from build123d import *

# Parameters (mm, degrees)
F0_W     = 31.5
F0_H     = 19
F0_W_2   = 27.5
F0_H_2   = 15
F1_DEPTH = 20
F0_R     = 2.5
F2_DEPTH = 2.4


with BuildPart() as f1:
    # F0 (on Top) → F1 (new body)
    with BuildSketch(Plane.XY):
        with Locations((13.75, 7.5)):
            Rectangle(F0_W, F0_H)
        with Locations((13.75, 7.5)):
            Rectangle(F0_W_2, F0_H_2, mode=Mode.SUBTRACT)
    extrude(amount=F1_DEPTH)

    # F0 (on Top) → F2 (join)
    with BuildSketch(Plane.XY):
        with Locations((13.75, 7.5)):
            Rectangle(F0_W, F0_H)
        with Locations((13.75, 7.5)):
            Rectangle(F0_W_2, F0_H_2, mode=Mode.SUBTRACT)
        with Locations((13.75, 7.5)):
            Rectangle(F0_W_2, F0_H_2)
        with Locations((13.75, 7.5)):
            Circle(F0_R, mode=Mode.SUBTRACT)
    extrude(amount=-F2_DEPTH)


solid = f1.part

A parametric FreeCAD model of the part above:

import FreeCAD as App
import Part
import Sketcher

V = App.Vector

doc = App.newDocument("Part")
params = doc.addObject("Spreadsheet::Sheet", "Params")
for row, (alias, value) in enumerate([
    ("sketch1_height", "19 mm"),
    ("sketch1_height2", "15 mm"),
    ("sketch1_width", "31.5 mm"),
    ("sketch1_width2", "27.5 mm"),
    ("pad1_length", "20 mm"),
    ("sketch2_diameter", "5 mm"),
    ("sketch2_height", "19 mm"),
    ("sketch2_width", "31.5 mm"),
    ("pad2_length", "2.4 mm"),
], start=1):
    params.set(f"A{row}", alias)
    params.set(f"B{row}", "=" + value)
    params.setAlias(f"B{row}", alias)

body = doc.addObject("PartDesign::Body", "Body")

sketch1 = body.newObject("Sketcher::SketchObject", "Sketch")
sketch1.AttachmentSupport = (doc.getObject("XY_Plane"), [""])
sketch1.MapMode = "FlatFace"
sketch1.addGeometry(Part.LineSegment(V(-2, 17, 0), V(-2, -2, 0)), False)
sketch1.addGeometry(Part.LineSegment(V(-2, -2, 0), V(29.5, -2, 0)), False)
sketch1.addGeometry(Part.LineSegment(V(29.5, -2, 0), V(29.5, 17, 0)), False)
sketch1.addGeometry(Part.LineSegment(V(29.5, 17, 0), V(-2, 17, 0)), False)
sketch1.addGeometry(Part.LineSegment(V(27.5, 0, 0), V(0, 0, 0)), False)
sketch1.addGeometry(Part.LineSegment(V(0, 0, 0), V(0, 15, 0)), False)
sketch1.addGeometry(Part.LineSegment(V(0, 15, 0), V(27.5, 15, 0)), False)
sketch1.addGeometry(Part.LineSegment(V(27.5, 15, 0), V(27.5, 0, 0)), False)
sketch1.addConstraint(Sketcher.Constraint("Coincident", 0, 2, 1, 1))
sketch1.addConstraint(Sketcher.Constraint("Coincident", 1, 2, 2, 1))
sketch1.addConstraint(Sketcher.Constraint("Coincident", 2, 2, 3, 1))
sketch1.addConstraint(Sketcher.Constraint("Coincident", 3, 2, 0, 1))
sketch1.addConstraint(Sketcher.Constraint("Coincident", 4, 2, 5, 1))
sketch1.addConstraint(Sketcher.Constraint("Coincident", 5, 2, 6, 1))
sketch1.addConstraint(Sketcher.Constraint("Coincident", 6, 2, 7, 1))
sketch1.addConstraint(Sketcher.Constraint("Coincident", 7, 2, 4, 1))
sketch1.addConstraint(Sketcher.Constraint("Vertical", 0))
sketch1.addConstraint(Sketcher.Constraint("Horizontal", 1))
sketch1.addConstraint(Sketcher.Constraint("Vertical", 2))
sketch1.addConstraint(Sketcher.Constraint("Horizontal", 3))
sketch1.addConstraint(Sketcher.Constraint("Horizontal", 4))
sketch1.addConstraint(Sketcher.Constraint("Vertical", 5))
sketch1.addConstraint(Sketcher.Constraint("Horizontal", 6))
sketch1.addConstraint(Sketcher.Constraint("Vertical", 7))
sketch1.addConstraint(Sketcher.Constraint("Coincident", 4, 2, -1, 1))
sketch1.addConstraint(Sketcher.Constraint("DistanceY", 0, 2, 0, 1, 19.0))
sketch1.addConstraint(Sketcher.Constraint("DistanceY", 5, 1, 5, 2, 15.0))
sketch1.addConstraint(Sketcher.Constraint("DistanceX", 1, 1, 1, 2, 31.5))
sketch1.addConstraint(Sketcher.Constraint("DistanceX", 4, 2, 4, 1, 27.5))
sketch1.addConstraint(Sketcher.Constraint("DistanceX", 0, 2, -1, 1, 2.0))
sketch1.addConstraint(Sketcher.Constraint("DistanceY", 0, 2, -1, 1, 2.0))
sketch1.setExpression("Constraints[17]", "Params.sketch1_height")
sketch1.setExpression("Constraints[18]", "Params.sketch1_height2")
sketch1.setExpression("Constraints[19]", "Params.sketch1_width")
sketch1.setExpression("Constraints[20]", "Params.sketch1_width2")
pad1 = body.newObject("PartDesign::Pad", "Pad")
pad1.Profile = sketch1
pad1.setExpression("Length", "Params.pad1_length")

sketch2 = body.newObject("Sketcher::SketchObject", "Sketch001")
sketch2.AttachmentSupport = (doc.getObject("XY_Plane"), [""])
sketch2.MapMode = "FlatFace"
sketch2.addGeometry(Part.LineSegment(V(-2, 17, 0), V(-2, -2, 0)), False)
sketch2.addGeometry(Part.LineSegment(V(-2, -2, 0), V(29.5, -2, 0)), False)
sketch2.addGeometry(Part.LineSegment(V(29.5, -2, 0), V(29.5, 17, 0)), False)
sketch2.addGeometry(Part.LineSegment(V(29.5, 17, 0), V(-2, 17, 0)), False)
sketch2.addGeometry(Part.Circle(V(13.75, 7.5, 0), V(0, 0, 1), 2.5), False)
sketch2.addConstraint(Sketcher.Constraint("Coincident", 0, 2, 1, 1))
sketch2.addConstraint(Sketcher.Constraint("Coincident", 1, 2, 2, 1))
sketch2.addConstraint(Sketcher.Constraint("Coincident", 2, 2, 3, 1))
sketch2.addConstraint(Sketcher.Constraint("Coincident", 3, 2, 0, 1))
sketch2.addConstraint(Sketcher.Constraint("Vertical", 0))
sketch2.addConstraint(Sketcher.Constraint("Horizontal", 1))
sketch2.addConstraint(Sketcher.Constraint("Vertical", 2))
sketch2.addConstraint(Sketcher.Constraint("Horizontal", 3))
sketch2.addConstraint(Sketcher.Constraint("Diameter", 4, 5.0))
sketch2.addConstraint(Sketcher.Constraint("DistanceY", 0, 2, 0, 1, 19.0))
sketch2.addConstraint(Sketcher.Constraint("DistanceX", 1, 1, 1, 2, 31.5))
sketch2.addConstraint(Sketcher.Constraint("DistanceX", 0, 2, -1, 1, 2.0))
sketch2.addConstraint(Sketcher.Constraint("DistanceY", 0, 2, -1, 1, 2.0))
sketch2.addConstraint(Sketcher.Constraint("DistanceY", -1, 1, 4, 3, 7.5))
sketch2.addConstraint(Sketcher.Constraint("DistanceX", -1, 1, 4, 3, 13.75))
sketch2.setExpression("Constraints[8]", "Params.sketch2_diameter")
sketch2.setExpression("Constraints[9]", "Params.sketch2_height")
sketch2.setExpression("Constraints[10]", "Params.sketch2_width")
pad2 = body.newObject("PartDesign::Pad", "Pad001")
pad2.Profile = sketch2
pad2.setExpression("Length", "Params.pad2_length")
pad2.Reversed = True

doc.recompute()
